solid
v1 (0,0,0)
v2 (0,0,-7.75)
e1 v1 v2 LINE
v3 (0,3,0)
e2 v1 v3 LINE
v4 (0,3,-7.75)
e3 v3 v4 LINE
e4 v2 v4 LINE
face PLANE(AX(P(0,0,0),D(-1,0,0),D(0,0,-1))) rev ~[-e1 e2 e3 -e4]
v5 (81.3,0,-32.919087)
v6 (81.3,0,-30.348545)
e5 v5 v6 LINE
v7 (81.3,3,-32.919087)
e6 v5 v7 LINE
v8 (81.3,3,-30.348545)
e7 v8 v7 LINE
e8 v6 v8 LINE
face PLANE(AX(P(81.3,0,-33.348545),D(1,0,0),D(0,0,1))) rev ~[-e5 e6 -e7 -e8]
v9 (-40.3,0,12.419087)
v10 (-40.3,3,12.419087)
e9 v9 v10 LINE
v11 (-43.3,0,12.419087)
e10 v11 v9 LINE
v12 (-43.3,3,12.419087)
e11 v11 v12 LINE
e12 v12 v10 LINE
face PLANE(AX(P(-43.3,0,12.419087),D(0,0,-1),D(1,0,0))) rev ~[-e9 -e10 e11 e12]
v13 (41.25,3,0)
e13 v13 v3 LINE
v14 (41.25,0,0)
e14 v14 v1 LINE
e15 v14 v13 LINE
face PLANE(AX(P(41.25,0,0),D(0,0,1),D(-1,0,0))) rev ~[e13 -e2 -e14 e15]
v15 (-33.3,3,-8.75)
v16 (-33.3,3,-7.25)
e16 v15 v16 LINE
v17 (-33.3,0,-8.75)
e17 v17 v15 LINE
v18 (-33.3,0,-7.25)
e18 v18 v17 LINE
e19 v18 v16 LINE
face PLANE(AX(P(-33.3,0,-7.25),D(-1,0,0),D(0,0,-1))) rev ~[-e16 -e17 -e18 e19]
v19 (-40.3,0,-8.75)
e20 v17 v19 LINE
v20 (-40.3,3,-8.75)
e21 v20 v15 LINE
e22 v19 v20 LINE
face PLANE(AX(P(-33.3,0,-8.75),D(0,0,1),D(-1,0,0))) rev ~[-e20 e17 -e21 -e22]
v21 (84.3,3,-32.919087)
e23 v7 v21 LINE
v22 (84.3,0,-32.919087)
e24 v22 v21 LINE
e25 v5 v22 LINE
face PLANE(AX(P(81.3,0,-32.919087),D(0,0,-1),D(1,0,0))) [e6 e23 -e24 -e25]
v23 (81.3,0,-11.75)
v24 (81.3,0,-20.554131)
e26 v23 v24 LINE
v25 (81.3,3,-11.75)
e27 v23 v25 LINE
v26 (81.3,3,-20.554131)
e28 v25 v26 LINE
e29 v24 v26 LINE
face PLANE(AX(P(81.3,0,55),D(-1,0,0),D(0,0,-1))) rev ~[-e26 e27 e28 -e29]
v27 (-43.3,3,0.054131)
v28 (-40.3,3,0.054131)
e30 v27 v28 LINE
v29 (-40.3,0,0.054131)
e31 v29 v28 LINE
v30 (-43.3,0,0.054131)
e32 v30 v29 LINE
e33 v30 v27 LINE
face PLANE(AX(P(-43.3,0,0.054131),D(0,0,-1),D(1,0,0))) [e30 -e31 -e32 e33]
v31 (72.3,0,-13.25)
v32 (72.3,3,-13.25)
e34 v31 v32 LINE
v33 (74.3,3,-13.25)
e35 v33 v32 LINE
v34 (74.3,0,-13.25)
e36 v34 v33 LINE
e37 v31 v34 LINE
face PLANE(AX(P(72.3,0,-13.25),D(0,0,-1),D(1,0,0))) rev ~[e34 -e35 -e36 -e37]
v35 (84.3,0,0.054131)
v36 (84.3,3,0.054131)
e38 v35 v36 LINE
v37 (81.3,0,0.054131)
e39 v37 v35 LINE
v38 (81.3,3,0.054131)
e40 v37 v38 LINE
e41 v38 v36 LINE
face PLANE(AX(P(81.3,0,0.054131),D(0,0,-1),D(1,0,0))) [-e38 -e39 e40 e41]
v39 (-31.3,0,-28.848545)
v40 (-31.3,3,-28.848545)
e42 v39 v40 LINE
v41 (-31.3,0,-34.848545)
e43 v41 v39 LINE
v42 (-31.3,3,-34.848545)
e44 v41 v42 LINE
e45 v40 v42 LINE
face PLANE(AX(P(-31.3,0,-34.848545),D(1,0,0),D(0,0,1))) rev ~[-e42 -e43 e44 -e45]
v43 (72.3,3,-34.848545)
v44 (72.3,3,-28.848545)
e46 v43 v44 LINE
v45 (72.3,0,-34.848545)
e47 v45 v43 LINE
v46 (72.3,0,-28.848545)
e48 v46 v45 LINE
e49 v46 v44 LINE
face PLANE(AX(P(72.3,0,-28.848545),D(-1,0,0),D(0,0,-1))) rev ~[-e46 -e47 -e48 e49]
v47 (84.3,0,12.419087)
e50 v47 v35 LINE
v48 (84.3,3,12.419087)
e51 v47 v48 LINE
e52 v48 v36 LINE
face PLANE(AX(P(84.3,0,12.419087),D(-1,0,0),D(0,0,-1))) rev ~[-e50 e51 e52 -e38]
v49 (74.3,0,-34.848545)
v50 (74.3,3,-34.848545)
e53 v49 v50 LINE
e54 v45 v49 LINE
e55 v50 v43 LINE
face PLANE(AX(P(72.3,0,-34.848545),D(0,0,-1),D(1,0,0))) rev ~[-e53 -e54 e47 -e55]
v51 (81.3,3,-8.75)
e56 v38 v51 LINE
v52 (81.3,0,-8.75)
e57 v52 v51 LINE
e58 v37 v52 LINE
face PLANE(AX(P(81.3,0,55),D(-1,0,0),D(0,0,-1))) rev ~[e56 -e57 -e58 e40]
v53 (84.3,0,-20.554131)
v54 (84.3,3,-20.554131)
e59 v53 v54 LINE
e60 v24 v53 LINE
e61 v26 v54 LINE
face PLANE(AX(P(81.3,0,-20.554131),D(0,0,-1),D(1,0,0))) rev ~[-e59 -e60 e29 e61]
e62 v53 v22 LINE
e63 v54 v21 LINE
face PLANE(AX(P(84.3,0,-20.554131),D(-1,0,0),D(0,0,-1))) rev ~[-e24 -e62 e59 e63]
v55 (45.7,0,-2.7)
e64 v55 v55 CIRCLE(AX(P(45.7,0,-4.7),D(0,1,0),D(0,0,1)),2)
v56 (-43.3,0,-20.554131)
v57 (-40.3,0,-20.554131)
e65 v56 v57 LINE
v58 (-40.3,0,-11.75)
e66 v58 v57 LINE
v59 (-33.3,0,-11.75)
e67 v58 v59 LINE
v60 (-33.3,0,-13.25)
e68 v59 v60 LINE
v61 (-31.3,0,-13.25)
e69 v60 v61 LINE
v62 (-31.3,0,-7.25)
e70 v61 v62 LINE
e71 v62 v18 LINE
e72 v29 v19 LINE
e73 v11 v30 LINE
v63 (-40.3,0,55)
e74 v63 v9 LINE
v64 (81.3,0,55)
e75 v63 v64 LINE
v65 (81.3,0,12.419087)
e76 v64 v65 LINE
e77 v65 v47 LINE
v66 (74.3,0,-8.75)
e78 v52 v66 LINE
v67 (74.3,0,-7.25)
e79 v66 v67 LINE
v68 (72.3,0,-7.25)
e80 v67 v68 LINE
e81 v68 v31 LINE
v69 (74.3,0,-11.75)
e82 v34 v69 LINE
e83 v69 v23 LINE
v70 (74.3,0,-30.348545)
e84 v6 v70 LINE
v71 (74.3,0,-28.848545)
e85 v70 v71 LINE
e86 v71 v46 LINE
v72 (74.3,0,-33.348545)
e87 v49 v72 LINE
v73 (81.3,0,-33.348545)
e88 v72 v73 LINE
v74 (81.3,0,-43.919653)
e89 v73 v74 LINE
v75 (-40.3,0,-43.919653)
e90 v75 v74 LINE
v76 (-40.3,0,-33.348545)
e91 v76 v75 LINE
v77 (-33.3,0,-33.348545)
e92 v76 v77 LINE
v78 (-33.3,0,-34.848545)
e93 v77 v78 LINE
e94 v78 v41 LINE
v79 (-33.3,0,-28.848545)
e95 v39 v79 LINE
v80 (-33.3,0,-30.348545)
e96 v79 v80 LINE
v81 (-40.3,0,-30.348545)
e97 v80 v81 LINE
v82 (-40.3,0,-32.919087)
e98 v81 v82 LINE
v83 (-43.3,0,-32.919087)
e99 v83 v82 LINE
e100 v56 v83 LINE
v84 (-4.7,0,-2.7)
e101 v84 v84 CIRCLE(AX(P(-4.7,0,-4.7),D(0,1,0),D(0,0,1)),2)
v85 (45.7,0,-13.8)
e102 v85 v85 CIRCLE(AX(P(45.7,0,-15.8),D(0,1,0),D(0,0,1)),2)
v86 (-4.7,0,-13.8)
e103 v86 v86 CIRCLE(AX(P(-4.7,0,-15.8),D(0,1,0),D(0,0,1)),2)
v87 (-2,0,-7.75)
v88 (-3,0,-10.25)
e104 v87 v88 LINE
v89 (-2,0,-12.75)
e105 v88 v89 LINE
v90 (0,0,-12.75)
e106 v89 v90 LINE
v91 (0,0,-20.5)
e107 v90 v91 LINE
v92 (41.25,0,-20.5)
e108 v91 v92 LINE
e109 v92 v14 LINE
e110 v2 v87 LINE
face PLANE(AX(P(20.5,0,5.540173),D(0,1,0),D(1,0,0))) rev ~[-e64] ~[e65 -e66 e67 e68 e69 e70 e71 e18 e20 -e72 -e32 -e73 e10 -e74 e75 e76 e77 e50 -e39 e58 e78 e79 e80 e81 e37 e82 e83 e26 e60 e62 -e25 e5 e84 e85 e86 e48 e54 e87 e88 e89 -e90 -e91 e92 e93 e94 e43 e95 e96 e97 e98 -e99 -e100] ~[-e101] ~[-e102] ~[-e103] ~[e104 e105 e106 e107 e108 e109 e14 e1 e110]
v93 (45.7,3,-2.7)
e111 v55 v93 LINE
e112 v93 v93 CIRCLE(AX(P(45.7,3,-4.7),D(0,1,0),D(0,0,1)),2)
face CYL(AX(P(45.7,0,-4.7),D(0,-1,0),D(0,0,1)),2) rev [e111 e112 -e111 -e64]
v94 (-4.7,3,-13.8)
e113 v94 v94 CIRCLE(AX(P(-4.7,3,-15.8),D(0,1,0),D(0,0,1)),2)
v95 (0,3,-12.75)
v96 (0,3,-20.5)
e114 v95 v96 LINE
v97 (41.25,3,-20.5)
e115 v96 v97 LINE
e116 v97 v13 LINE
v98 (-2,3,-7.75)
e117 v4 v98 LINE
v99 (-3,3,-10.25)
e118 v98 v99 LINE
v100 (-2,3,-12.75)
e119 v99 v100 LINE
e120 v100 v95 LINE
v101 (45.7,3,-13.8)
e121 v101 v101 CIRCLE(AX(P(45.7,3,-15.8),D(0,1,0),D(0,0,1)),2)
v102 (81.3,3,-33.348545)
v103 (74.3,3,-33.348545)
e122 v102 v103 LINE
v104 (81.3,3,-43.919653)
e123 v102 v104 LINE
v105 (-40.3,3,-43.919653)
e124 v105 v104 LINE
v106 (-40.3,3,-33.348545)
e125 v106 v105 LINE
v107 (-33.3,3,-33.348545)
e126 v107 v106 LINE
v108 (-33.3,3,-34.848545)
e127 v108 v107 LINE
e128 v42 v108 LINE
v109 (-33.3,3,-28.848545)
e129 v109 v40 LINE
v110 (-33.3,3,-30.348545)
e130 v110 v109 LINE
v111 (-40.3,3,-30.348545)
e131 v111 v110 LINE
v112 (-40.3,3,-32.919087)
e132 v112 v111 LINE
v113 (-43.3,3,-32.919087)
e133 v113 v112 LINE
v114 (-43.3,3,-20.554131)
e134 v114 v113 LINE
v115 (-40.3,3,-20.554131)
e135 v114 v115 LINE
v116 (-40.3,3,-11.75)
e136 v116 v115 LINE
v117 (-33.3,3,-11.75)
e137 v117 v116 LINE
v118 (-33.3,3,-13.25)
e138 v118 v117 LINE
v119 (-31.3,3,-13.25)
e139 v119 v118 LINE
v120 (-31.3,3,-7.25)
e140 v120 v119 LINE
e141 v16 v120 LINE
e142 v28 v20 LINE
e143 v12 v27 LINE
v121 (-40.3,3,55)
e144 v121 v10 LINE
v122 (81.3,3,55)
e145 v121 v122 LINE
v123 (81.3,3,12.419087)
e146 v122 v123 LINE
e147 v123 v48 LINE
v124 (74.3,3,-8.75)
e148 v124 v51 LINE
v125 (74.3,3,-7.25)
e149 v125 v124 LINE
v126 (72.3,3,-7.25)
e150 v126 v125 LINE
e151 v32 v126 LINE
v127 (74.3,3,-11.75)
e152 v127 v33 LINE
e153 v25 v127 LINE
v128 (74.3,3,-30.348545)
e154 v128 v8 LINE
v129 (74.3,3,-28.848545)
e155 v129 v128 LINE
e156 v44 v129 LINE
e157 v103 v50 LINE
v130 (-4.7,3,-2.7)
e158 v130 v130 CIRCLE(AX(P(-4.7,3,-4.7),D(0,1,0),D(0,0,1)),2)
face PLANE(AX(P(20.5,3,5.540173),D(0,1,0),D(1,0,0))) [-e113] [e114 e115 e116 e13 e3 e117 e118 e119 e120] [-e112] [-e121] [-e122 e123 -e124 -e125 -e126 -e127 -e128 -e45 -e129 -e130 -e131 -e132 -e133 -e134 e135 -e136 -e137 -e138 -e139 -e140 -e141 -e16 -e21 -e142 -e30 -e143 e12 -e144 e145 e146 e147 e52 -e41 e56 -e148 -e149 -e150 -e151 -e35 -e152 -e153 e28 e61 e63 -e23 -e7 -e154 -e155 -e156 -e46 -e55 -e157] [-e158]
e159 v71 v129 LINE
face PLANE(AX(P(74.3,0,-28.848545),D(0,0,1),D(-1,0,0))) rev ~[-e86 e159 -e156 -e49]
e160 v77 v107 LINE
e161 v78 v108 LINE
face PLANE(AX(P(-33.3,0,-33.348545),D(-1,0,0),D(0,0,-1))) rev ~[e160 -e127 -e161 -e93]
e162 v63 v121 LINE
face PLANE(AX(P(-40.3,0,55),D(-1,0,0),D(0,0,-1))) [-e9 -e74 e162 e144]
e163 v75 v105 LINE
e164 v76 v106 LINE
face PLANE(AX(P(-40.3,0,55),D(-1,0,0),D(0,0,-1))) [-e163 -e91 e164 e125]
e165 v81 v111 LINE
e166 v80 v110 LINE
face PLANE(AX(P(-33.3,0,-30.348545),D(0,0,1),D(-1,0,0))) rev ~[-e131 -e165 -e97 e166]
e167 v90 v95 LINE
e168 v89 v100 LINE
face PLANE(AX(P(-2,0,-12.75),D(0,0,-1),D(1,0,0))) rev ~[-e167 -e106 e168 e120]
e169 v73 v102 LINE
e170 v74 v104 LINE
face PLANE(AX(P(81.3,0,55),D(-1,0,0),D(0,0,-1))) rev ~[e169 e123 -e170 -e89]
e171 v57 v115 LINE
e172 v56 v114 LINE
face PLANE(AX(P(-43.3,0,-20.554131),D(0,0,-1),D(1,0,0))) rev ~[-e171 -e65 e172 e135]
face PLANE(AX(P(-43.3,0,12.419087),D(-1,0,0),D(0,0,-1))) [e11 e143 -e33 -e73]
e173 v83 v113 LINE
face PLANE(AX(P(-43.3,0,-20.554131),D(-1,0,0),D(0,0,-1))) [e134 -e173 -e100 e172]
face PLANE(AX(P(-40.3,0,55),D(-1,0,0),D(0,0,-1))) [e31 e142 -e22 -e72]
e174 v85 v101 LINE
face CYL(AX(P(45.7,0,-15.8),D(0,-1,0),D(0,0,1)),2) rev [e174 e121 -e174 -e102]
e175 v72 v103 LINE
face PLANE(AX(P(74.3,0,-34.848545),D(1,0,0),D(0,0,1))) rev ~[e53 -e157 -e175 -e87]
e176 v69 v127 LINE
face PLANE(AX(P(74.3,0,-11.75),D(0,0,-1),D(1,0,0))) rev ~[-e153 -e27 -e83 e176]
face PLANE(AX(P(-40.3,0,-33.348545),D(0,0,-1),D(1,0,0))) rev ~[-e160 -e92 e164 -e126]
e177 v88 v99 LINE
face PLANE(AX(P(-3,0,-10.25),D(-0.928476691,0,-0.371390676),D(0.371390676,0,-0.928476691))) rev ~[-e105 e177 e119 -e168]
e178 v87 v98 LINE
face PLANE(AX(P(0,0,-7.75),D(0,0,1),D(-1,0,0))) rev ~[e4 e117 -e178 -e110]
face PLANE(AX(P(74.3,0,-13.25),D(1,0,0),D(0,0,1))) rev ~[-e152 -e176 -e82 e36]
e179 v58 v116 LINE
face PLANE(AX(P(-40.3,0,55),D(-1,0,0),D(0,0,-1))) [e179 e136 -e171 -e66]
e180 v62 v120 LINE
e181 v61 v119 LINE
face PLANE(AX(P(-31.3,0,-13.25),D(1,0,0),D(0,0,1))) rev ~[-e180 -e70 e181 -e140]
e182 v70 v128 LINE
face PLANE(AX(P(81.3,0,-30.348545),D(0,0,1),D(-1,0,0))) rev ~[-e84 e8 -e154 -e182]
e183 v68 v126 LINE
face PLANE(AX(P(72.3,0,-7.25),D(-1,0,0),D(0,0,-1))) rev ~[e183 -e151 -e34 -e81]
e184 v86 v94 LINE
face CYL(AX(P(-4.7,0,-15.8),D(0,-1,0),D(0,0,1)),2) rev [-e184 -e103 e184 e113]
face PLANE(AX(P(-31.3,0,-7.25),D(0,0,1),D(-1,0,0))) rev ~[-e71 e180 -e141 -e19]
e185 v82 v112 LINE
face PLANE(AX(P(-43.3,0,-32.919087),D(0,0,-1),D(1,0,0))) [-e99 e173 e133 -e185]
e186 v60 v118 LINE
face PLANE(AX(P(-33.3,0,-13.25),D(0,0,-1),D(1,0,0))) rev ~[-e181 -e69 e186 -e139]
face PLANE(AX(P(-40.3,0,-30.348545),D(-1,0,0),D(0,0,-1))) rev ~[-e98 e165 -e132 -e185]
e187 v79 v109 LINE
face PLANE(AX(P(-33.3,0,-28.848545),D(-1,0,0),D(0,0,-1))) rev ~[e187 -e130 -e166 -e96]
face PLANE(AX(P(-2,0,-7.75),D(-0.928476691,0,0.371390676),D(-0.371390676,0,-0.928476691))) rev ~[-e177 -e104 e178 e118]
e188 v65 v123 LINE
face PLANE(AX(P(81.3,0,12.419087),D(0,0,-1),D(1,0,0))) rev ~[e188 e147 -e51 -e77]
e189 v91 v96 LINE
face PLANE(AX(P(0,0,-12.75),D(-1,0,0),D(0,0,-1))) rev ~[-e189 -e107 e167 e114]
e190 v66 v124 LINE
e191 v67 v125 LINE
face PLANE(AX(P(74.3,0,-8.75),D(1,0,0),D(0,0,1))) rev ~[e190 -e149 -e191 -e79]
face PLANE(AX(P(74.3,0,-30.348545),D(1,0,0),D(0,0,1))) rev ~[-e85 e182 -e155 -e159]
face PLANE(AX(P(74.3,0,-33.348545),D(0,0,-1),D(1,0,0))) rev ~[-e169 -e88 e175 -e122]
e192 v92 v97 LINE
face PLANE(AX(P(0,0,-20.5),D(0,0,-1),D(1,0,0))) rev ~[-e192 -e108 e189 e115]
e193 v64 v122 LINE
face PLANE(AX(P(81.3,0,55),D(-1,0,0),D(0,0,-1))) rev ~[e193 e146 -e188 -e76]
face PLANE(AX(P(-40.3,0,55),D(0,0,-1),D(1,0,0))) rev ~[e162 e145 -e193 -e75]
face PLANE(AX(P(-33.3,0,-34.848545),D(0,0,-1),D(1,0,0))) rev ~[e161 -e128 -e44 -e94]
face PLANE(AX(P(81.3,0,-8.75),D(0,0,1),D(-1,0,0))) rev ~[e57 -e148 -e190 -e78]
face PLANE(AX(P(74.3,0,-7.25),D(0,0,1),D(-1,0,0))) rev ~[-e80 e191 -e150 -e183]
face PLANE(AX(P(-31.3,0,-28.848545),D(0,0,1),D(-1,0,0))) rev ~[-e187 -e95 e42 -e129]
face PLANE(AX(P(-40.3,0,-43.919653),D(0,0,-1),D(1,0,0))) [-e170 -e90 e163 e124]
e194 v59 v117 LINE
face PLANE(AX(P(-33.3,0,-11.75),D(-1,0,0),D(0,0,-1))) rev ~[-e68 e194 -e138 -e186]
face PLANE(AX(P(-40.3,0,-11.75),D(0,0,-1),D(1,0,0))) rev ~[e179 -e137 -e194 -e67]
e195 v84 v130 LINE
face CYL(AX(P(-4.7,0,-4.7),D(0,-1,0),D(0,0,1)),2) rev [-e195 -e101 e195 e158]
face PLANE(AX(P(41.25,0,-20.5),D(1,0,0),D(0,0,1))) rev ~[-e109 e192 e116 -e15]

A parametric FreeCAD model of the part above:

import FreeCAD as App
import Part
import Sketcher

V = App.Vector
Q = App.Units.Quantity


def add_polygon(sketch, points):
    """Adds a closed chain of lines whose ends are joined by coincident constraints."""
    first, n = sketch.GeometryCount, len(points)
    for a, b in zip(points, points[1:] + points[:1]):
        sketch.addGeometry(Part.LineSegment(App.Vector(*a, 0), App.Vector(*b, 0)), False)
    for i in range(n):
        sketch.addConstraint(Sketcher.Constraint("Coincident", first + i, 2, first + (i + 1) % n, 1))

doc = App.newDocument("Part")
body = doc.addObject("PartDesign::Body", "Body")

# Sketch on XZ plane
sketch1 = body.newObject("Sketcher::SketchObject", "Sketch")
sketch1.AttachmentSupport = (doc.getObject("XZ_Plane"), [""])
sketch1.MapMode = "FlatFace"
add_polygon(sketch1, [(-40.3, -43.919653), (-40.3, 55), (81.3, 55), (81.3, -43.919653)])  # lines 0-3
sketch1.addGeometry(Part.Circle(V(-4.7, -4.7, 0), V(0, 0, 1), 2), False)  # 4
sketch1.addGeometry(Part.Circle(V(45.7, -4.7, 0), V(0, 0, 1), 2), False)  # 5
add_polygon(sketch1, [(41.25, -20.5), (41.25, 0), (0, 0), (0, -7.75), (-2, -7.75), (-3, -10.25), (-2, -12.75), (0, -12.75), (0, -20.5)])  # lines 6-14
sketch1.addGeometry(Part.Circle(V(-4.7, -15.8, 0), V(0, 0, 1), 2), False)  # 15
sketch1.addGeometry(Part.Circle(V(45.7, -15.8, 0), V(0, 0, 1), 2), False)  # 16
sketch1.addConstraint([
    Sketcher.Constraint("Vertical", 0),
    Sketcher.Constraint("Horizontal", 1),
    Sketcher.Constraint("Vertical", 2),
    Sketcher.Constraint("Horizontal", 3),
    Sketcher.Constraint("Vertical", 6),
    Sketcher.Constraint("Horizontal", 7),
    Sketcher.Constraint("Vertical", 8),
    Sketcher.Constraint("Horizontal", 9),
    Sketcher.Constraint("Horizontal", 12),
    Sketcher.Constraint("Vertical", 13),
    Sketcher.Constraint("Horizontal", 14),
    Sketcher.Constraint("Coincident", 7, 2, -1, 1),
    Sketcher.Constraint("Equal", 4, 5),
    Sketcher.Constraint("Equal", 5, 15),
    Sketcher.Constraint("Equal", 15, 16),
    Sketcher.Constraint("PointOnObject", 12, 2, -2),
    Sketcher.Constraint("Horizontal", 4, 3, 5, 3),
    Sketcher.Constraint("Horizontal", 15, 3, 16, 3),
    Sketcher.Constraint("Vertical", 4, 3, 15, 3),
    Sketcher.Constraint("Vertical", 5, 3, 16, 3),
    Sketcher.Constraint("Vertical", 9, 2, 11, 2),
    Sketcher.Constraint("Equal", 8, 13),
    Sketcher.Constraint("Equal", 10, 11),
    Sketcher.Constraint("Diameter", 4, Q("4 mm")),
    Sketcher.Constraint("DistanceX", 9, 2, 9, 1, Q("2 mm")),
    Sketcher.Constraint("DistanceX", 1, 1, 1, 2, Q("121.6 mm")),
    Sketcher.Constraint("DistanceY", 6, 1, 6, 2, Q("20.5 mm")),
    Sketcher.Constraint("DistanceY", -1, 1, 0, 2, Q("55 mm")),
    Sketcher.Constraint("DistanceX", 10, 2, -1, 1, Q("3 mm")),
    Sketcher.Constraint("DistanceX", 0, 2, 5, 3, Q("86 mm")),
    Sketcher.Constraint("DistanceX", 4, 3, 1, 2, Q("86 mm")),
    Sketcher.Constraint("DistanceY", 11, 2, 9, 2, Q("5 mm")),
    Sketcher.Constraint("DistanceX", 7, 2, 7, 1, Q("41.25 mm")),
    Sketcher.Constraint("DistanceX", 4, 3, -1, 1, Q("4.7 mm")),
    Sketcher.Constraint("DistanceY", 4, 3, -1, 1, Q("4.7 mm")),
    Sketcher.Constraint("DistanceY", 15, 3, -1, 1, Q("15.8 mm")),
    Sketcher.Constraint("DistanceY", 0, 1, 0, 2, Q("98.919653 mm")),
])
pad1 = body.newObject("PartDesign::Pad", "Pad")
pad1.Profile = sketch1
pad1.Length = 3
pad1.Reversed = True

# Sketch on XZ plane
sketch2 = body.newObject("Sketcher::SketchObject", "Sketch001")
sketch2.AttachmentSupport = (doc.getObject("XZ_Plane"), [""])
sketch2.MapMode = "FlatFace"
add_polygon(sketch2, [(-43.3, -32.919087), (-43.3, -20.554131), (-40.3, -20.554131), (-40.3, -32.919087)])  # lines 0-3
add_polygon(sketch2, [(-43.3, 0.054131), (-43.3, 12.419087), (-40.3, 12.419087), (-40.3, 0.054131)])  # lines 4-7
add_polygon(sketch2, [(81.3, 0.054131), (81.3, 12.419087), (84.3, 12.419087), (84.3, 0.054131)])  # lines 8-11
add_polygon(sketch2, [(81.3, -32.919087), (81.3, -20.554131), (84.3, -20.554131), (84.3, -32.919087)])  # lines 12-15
sketch2.addConstraint([
    Sketcher.Constraint("Vertical", 0),
    Sketcher.Constraint("Horizontal", 1),
    Sketcher.Constraint("Vertical", 2),
    Sketcher.Constraint("Horizontal", 3),
    Sketcher.Constraint("Vertical", 4),
    Sketcher.Constraint("Horizontal", 5),
    Sketcher.Constraint("Vertical", 6),
    Sketcher.Constraint("Horizontal", 7),
    Sketcher.Constraint("Vertical", 8),
    Sketcher.Constraint("Horizontal", 9),
    Sketcher.Constraint("Vertical", 10),
    Sketcher.Constraint("Horizontal", 11),
    Sketcher.Constraint("Vertical", 12),
    Sketcher.Constraint("Horizontal", 13),
    Sketcher.Constraint("Vertical", 14),
    Sketcher.Constraint("Horizontal", 15),
    Sketcher.Constraint("Horizontal", 5, 2, 8, 2),
    Sketcher.Constraint("Horizontal", 7, 2, 10, 2),
    Sketcher.Constraint("Horizontal", 1, 2, 12, 2),
    Sketcher.Constraint("Horizontal", 3, 2, 14, 2),
    Sketcher.Constraint("Vertical", 3, 2, 4, 2),
    Sketcher.Constraint("Vertical", 2, 2, 5, 2),
    Sketcher.Constraint("Vertical", 11, 2, 12, 2),
    Sketcher.Constraint("Vertical", 10, 2, 13, 2),
    Sketcher.Constraint("Equal", 7, 9),
    Sketcher.Constraint("Equal", 2, 4),
    Sketcher.Constraint("DistanceX", 1, 1, 1, 2, Q("3 mm")),
    Sketcher.Constraint("DistanceX", 0, 2, -1, 1, Q("43.3 mm")),
    Sketcher.Constraint("DistanceX", -1, 1, 8, 2, Q("81.3 mm")),
    Sketcher.Constraint("DistanceY", 0, 1, 0, 2, Q("12.364957 mm")),
    Sketcher.Constraint("DistanceY", 0, 2, -1, 1, Q("20.554131 mm")),
    Sketcher.Constraint("DistanceY", -1, 1, 6, 2, Q("0.054131 mm")),
])
pad2 = body.newObject("PartDesign::Pad", "Pad001")
pad2.Profile = sketch2
pad2.Length = 3
pad2.Reversed = True

# Sketch on XZ plane
sketch3 = body.newObject("Sketcher::SketchObject", "Sketch002")
sketch3.AttachmentSupport = (doc.getObject("XZ_Plane"), [""])
sketch3.MapMode = "FlatFace"
add_polygon(sketch3, [(74.3, -8.75), (81.3, -8.75), (81.3, -11.75), (74.3, -11.75), (74.3, -13.25), (72.3, -13.25), (72.3, -7.25), (74.3, -7.25)])  # lines 0-7
add_polygon(sketch3, [(74.3, -30.348545), (81.3, -30.348545), (81.3, -33.348545), (74.3, -33.348545), (74.3, -34.848545), (72.3, -34.848545), (72.3, -28.848545), (74.3, -28.848545)])  # lines 8-15
add_polygon(sketch3, [(-40.3, -33.348545), (-40.3, -30.348545), (-33.3, -30.348545), (-33.3, -28.848545), (-31.3, -28.848545), (-31.3, -34.848545), (-33.3, -34.848545), (-33.3, -33.348545)])  # lines 16-23
add_polygon(sketch3, [(-40.3, -11.75), (-40.3, -8.75), (-33.3, -8.75), (-33.3, -7.25), (-31.3, -7.25), (-31.3, -13.25), (-33.3, -13.25), (-33.3, -11.75)])  # lines 24-31
sketch3.addConstraint([
    Sketcher.Constraint("Horizontal", 0),
    Sketcher.Constraint("Vertical", 1),
    Sketcher.Constraint("Horizontal", 2),
    Sketcher.Constraint("Vertical", 3),
    Sketcher.Constraint("Horizontal", 4),
    Sketcher.Constraint("Vertical", 5),
    Sketcher.Constraint("Horizontal", 6),
    Sketcher.Constraint("Vertical", 7),
    Sketcher.Constraint("Horizontal", 8),
    Sketcher.Constraint("Vertical", 9),
    Sketcher.Constraint("Horizontal", 10),
    Sketcher.Constraint("Vertical", 11),
    Sketcher.Constraint("Horizontal", 12),
    Sketcher.Constraint("Vertical", 13),
    Sketcher.Constraint("Horizontal", 14),
    Sketcher.Constraint("Vertical", 15),
    Sketcher.Constraint("Vertical", 16),
    Sketcher.Constraint("Horizontal", 17),
    Sketcher.Constraint("Vertical", 18),
    Sketcher.Constraint("Horizontal", 19),
    Sketcher.Constraint("Vertical", 20),
    Sketcher.Constraint("Horizontal", 21),
    Sketcher.Constraint("Vertical", 22),
    Sketcher.Constraint("Horizontal", 23),
    Sketcher.Constraint("Vertical", 24),
    Sketcher.Constraint("Horizontal", 25),
    Sketcher.Constraint("Vertical", 26),
    Sketcher.Constraint("Horizontal", 27),
    Sketcher.Constraint("Vertical", 28),
    Sketcher.Constraint("Horizontal", 29),
    Sketcher.Constraint("Vertical", 30),
    Sketcher.Constraint("Horizontal", 31),
    Sketcher.Constraint("Horizontal", 15, 2, 16, 2),
    Sketcher.Constraint("Horizontal", 14, 2, 18, 2),
    Sketcher.Constraint("Horizontal", 12, 2, 20, 2),
    Sketcher.Constraint("Horizontal", 10, 2, 22, 2),
    Sketcher.Constraint("Horizontal", 7, 2, 24, 2),
    Sketcher.Constraint("Horizontal", 6, 2, 26, 2),
    Sketcher.Constraint("Horizontal", 4, 2, 28, 2),
    Sketcher.Constraint("Horizontal", 2, 2, 30, 2),
    Sketcher.Constraint("Vertical", 3, 2, 6, 2),
    Sketcher.Constraint("Vertical", 1, 2, 8, 2),
    Sketcher.Constraint("Vertical", 7, 2, 10, 2),
    Sketcher.Constraint("Vertical", 5, 2, 12, 2),
    Sketcher.Constraint("Vertical", 11, 2, 14, 2),
    Sketcher.Constraint("Vertical", 18, 2, 21, 2),
    Sketcher.Constraint("Vertical", 23, 2, 24, 2),
    Sketcher.Constraint("Vertical", 22, 2, 25, 2),
    Sketcher.Constraint("Vertical", 20, 2, 27, 2),
    Sketcher.Constraint("Vertical", 26, 2, 29, 2),
    Sketcher.Constraint("Equal", 10, 17),
    Sketcher.Constraint("Equal", 14, 19),
    Sketcher.Constraint("Equal", 3, 7),
    Sketcher.Constraint("Equal", 1, 9),
    Sketcher.Constraint("Equal", 7, 11),
    Sketcher.Constraint("Equal", 5, 13),
    Sketcher.Constraint("DistanceX", 0, 1, 0, 2, Q("7 mm")),
    Sketcher.Constraint("DistanceX", 4, 2, 4, 1, Q("2 mm")),
    Sketcher.Constraint("DistanceY", 1, 2, 1, 1, Q("3 mm")),
    Sketcher.Constraint("DistanceY", 5, 1, 5, 2, Q("6 mm")),
    Sketcher.Constraint("DistanceX", -1, 1, 0, 2, Q("81.3 mm")),
    Sketcher.Constraint("DistanceX", 16, 2, -1, 1, Q("40.3 mm")),
    Sketcher.Constraint("DistanceY", 0, 2, -1, 1, Q("8.75 mm")),
    Sketcher.Constraint("DistanceY", 8, 2, -1, 1, Q("30.348545 mm")),
])
pocket1 = body.newObject("PartDesign::Pocket", "Pocket")
pocket1.Profile = sketch3
pocket1.Type = "ThroughAll"

doc.recompute()
